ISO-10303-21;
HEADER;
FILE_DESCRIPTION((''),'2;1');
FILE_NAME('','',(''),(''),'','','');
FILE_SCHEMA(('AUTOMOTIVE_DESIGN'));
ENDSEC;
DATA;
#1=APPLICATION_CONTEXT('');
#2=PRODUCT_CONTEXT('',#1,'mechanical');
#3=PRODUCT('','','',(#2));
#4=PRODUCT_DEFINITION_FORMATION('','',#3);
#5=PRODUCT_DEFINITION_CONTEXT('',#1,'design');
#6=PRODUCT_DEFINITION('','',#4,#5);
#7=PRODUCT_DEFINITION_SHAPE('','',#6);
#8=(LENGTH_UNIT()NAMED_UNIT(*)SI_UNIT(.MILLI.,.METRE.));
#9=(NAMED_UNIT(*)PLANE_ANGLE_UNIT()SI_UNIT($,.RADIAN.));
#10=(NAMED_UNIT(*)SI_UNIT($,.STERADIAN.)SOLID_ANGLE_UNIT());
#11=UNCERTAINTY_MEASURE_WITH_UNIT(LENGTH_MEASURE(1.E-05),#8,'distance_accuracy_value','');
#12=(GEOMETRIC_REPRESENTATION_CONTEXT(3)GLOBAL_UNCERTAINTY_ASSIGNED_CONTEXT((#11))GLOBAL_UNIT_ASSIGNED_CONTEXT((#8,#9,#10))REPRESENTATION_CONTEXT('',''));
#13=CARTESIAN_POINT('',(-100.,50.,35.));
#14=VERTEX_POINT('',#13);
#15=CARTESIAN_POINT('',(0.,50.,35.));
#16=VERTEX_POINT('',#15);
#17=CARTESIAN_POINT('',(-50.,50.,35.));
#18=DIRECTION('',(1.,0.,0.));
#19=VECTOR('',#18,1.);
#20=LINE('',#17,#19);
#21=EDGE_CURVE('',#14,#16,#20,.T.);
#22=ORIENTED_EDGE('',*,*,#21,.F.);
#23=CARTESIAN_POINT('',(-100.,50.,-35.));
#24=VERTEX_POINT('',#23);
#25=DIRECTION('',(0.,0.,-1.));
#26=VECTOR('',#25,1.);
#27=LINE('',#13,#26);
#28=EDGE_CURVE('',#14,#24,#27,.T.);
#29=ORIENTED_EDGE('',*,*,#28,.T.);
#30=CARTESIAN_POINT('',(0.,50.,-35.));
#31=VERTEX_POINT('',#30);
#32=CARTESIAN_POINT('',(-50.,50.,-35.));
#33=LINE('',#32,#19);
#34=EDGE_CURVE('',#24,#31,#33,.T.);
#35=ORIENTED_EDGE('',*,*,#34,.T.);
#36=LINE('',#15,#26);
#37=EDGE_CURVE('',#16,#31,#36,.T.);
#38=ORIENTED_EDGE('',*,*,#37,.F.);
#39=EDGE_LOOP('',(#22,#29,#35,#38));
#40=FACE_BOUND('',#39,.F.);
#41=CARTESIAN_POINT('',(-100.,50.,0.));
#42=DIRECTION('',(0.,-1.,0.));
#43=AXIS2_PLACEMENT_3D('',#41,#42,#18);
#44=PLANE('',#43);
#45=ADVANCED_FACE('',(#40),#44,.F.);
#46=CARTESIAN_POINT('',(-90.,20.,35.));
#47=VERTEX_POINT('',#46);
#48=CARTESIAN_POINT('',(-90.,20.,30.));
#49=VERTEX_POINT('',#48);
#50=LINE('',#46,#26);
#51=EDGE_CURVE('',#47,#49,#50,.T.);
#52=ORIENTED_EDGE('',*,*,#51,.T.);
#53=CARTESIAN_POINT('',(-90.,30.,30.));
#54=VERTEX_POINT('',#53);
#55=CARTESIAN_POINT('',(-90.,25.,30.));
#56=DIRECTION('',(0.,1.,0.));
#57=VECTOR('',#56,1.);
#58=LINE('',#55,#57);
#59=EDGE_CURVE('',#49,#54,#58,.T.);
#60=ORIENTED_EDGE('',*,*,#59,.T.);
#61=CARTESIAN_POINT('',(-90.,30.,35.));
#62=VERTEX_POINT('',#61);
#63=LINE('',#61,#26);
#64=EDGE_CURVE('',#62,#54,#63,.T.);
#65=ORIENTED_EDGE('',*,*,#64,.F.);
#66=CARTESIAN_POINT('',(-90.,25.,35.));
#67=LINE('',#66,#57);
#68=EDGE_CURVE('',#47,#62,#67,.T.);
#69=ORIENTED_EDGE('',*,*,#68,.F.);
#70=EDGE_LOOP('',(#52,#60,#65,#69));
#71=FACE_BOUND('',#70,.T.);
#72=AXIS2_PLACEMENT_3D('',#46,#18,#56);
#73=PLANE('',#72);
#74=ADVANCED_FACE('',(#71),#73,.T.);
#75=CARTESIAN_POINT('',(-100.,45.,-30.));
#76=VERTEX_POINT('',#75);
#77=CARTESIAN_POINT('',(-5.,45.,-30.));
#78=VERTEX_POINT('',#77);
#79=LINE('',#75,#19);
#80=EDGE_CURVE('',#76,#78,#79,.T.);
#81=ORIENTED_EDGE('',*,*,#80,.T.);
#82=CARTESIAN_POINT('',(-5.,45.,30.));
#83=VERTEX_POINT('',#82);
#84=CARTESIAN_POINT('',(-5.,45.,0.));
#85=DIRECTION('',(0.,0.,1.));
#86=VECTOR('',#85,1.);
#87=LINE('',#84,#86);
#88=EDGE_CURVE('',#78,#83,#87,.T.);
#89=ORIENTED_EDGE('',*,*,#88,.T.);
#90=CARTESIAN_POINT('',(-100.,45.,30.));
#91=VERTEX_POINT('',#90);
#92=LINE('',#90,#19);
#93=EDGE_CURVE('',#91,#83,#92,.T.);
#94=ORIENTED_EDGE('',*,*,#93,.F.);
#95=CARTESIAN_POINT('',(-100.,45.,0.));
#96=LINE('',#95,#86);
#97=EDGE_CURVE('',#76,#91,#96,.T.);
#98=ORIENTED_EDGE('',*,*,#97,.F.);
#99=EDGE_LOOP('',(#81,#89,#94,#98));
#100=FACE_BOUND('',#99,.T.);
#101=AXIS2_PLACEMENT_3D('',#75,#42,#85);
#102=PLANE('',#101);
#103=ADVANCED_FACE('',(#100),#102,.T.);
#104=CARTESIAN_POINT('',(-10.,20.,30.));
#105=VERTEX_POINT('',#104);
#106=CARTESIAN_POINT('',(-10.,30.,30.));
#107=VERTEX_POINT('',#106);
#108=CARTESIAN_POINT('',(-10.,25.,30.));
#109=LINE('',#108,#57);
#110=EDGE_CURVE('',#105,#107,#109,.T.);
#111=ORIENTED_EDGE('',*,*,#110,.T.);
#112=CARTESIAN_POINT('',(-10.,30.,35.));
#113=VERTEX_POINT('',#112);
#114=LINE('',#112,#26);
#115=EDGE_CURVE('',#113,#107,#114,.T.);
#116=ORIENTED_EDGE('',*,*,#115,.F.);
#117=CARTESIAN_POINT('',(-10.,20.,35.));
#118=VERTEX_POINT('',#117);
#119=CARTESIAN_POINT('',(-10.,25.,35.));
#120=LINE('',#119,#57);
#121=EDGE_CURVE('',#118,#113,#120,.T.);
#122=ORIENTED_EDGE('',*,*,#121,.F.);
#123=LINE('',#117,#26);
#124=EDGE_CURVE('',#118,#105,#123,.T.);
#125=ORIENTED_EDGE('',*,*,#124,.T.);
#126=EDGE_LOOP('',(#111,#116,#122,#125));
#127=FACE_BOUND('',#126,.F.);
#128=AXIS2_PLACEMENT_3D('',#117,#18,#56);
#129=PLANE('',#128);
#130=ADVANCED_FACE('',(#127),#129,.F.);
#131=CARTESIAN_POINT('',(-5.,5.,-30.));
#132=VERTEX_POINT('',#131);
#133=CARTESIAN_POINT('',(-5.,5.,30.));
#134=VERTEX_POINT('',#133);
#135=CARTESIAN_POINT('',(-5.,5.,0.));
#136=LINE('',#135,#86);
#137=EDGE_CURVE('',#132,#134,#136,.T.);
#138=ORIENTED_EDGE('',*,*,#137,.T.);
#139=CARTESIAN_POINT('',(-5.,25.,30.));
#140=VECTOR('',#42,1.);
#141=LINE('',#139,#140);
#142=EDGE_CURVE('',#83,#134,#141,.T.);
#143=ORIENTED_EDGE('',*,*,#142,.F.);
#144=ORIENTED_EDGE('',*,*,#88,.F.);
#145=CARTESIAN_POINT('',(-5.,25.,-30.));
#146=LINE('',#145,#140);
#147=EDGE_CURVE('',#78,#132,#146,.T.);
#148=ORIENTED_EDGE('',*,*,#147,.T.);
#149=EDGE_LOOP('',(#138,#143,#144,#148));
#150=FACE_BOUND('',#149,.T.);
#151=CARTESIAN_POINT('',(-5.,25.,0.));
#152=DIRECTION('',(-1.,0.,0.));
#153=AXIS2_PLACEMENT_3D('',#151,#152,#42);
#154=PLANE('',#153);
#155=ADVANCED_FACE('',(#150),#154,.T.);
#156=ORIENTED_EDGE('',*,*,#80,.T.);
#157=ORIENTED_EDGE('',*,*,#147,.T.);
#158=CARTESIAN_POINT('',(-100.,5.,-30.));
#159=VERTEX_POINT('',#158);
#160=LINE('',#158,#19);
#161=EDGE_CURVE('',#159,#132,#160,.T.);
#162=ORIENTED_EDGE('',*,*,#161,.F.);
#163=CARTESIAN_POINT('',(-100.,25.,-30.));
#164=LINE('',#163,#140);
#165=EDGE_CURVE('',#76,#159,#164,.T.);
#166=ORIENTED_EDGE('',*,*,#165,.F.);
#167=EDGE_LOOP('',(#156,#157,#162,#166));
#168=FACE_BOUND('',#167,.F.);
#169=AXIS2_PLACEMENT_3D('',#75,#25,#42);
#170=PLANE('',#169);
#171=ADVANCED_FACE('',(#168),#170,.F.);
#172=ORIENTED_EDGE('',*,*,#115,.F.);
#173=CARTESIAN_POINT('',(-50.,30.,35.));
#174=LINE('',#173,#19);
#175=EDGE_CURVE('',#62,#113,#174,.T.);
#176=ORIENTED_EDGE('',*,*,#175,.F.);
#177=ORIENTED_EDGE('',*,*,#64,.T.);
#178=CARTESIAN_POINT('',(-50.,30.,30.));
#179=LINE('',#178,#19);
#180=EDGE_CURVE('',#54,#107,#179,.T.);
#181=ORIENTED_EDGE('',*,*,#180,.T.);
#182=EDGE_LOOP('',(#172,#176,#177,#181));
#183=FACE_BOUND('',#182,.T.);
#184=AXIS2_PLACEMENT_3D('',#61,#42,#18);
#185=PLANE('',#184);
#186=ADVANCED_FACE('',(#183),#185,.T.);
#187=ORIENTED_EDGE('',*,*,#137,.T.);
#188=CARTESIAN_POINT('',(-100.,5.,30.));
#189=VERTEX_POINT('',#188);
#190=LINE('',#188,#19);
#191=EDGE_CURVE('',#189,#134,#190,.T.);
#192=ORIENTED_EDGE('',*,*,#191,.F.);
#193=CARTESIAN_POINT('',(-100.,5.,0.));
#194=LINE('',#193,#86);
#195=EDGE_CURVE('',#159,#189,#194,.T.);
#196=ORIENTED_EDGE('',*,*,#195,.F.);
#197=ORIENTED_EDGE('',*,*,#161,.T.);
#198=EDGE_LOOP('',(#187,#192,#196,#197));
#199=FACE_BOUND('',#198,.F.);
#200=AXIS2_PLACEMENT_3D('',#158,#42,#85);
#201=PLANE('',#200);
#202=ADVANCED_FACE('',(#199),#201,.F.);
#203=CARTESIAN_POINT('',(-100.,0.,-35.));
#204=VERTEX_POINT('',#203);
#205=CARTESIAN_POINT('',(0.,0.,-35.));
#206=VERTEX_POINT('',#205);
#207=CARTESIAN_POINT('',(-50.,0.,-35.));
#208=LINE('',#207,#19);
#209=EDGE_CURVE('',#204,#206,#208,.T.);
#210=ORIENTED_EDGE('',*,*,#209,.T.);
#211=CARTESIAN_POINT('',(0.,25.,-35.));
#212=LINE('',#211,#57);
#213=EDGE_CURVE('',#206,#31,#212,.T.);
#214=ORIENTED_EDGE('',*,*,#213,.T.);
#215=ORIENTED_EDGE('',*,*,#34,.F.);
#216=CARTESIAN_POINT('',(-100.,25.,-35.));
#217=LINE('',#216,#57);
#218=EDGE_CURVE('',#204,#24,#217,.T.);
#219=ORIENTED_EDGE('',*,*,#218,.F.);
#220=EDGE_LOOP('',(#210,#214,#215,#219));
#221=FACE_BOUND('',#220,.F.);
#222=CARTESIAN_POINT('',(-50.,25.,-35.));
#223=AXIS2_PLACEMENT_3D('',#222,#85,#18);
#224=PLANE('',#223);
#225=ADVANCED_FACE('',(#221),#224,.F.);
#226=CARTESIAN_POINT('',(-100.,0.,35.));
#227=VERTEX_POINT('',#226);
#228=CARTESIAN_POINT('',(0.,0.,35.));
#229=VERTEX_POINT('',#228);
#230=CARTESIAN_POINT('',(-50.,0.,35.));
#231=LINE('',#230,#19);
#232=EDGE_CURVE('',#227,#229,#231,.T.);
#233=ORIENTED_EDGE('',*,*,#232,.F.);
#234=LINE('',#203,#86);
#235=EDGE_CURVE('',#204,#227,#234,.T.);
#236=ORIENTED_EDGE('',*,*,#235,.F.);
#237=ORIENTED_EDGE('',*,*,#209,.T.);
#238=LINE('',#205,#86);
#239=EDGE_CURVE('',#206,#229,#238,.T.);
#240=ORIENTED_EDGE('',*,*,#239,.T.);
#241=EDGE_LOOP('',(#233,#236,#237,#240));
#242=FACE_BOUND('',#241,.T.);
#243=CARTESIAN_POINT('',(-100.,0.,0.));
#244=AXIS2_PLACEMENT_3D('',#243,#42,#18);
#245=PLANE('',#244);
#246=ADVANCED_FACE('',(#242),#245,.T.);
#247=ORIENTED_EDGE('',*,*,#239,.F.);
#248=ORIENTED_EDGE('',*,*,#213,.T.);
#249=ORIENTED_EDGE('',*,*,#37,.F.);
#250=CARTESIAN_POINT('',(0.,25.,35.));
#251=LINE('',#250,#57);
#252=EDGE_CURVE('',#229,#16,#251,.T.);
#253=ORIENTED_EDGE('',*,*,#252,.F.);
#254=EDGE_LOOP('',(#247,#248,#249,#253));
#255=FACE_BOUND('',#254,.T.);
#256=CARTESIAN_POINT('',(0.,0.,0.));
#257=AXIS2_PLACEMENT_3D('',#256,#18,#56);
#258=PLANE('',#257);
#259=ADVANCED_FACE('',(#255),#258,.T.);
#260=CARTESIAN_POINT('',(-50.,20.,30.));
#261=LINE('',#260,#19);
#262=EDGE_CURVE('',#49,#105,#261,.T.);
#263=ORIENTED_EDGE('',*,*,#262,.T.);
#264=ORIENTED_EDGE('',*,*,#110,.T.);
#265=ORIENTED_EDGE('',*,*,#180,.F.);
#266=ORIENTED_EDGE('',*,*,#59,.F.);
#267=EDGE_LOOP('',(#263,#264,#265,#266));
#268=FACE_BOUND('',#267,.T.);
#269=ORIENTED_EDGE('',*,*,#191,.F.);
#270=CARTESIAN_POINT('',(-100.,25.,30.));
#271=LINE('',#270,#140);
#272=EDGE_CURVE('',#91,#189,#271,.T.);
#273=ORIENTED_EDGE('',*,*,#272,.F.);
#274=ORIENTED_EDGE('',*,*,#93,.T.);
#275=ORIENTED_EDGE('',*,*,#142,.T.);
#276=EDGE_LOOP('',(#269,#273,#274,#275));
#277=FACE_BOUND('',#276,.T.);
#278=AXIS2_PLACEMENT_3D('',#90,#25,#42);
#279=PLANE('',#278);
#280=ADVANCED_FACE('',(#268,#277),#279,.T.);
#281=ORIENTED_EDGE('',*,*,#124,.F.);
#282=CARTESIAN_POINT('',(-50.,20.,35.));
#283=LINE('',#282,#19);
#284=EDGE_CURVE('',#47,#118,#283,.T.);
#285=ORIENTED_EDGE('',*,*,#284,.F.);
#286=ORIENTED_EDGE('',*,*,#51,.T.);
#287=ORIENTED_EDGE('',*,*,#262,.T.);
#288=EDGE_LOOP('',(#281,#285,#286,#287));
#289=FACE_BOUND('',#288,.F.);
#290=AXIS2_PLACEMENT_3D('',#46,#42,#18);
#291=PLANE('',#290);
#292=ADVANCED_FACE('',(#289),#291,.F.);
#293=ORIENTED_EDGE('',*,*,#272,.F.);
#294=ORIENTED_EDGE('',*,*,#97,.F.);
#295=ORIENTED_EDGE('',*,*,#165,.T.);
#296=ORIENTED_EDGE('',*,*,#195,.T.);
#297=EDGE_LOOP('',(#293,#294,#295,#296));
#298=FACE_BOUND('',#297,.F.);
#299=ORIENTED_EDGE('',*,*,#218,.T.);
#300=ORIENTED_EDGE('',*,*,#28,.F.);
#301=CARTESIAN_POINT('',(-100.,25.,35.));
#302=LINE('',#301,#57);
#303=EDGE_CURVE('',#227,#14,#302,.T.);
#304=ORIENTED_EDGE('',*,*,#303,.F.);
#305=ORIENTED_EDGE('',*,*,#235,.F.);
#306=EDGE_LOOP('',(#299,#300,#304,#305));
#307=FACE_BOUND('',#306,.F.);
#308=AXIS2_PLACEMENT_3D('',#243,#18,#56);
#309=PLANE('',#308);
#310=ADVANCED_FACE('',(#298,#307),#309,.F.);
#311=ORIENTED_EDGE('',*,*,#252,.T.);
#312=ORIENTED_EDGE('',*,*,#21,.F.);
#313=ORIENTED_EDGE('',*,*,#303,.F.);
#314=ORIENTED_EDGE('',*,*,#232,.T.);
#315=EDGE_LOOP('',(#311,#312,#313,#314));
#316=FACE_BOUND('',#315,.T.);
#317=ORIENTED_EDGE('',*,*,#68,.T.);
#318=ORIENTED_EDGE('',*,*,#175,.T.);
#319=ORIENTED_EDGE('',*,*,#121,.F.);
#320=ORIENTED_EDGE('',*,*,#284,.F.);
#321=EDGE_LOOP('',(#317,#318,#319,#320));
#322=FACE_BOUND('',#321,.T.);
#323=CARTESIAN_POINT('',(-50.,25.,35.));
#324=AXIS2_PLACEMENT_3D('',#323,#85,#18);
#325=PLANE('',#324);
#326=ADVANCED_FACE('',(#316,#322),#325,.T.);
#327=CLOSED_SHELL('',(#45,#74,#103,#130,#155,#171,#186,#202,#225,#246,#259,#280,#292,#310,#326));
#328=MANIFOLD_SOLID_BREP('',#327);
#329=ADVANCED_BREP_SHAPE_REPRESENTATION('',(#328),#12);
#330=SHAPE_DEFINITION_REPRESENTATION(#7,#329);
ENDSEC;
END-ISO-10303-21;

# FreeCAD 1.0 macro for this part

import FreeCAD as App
import Part
import Sketcher
Q = App.Units.Quantity

doc = App.newDocument("Part")
body = doc.addObject("PartDesign::Body", "Body")

# Sketch on XY plane
sketch1 = body.newObject("Sketcher::SketchObject", "Sketch")
sketch1.AttachmentSupport = (doc.getObject("XY_Plane"), [""])
sketch1.MapMode = "FlatFace"
sketch1.addGeometry(Part.LineSegment(App.Vector(-100, 50, 0), App.Vector(-100, 0, 0)), False)
sketch1.addGeometry(Part.LineSegment(App.Vector(-100, 0, 0), App.Vector(0, 0, 0)), False)
sketch1.addGeometry(Part.LineSegment(App.Vector(0, 0, 0), App.Vector(0, 50, 0)), False)
sketch1.addGeometry(Part.LineSegment(App.Vector(0, 50, 0), App.Vector(-100, 50, 0)), False)
sketch1.addConstraint(Sketcher.Constraint("Coincident", 0, 2, 1, 1))
sketch1.addConstraint(Sketcher.Constraint("Coincident", 1, 2, 2, 1))
sketch1.addConstraint(Sketcher.Constraint("Coincident", 2, 2, 3, 1))
sketch1.addConstraint(Sketcher.Constraint("Coincident", 3, 2, 0, 1))
sketch1.addConstraint(Sketcher.Constraint("Vertical", 0))
sketch1.addConstraint(Sketcher.Constraint("Horizontal", 1))
sketch1.addConstraint(Sketcher.Constraint("Vertical", 2))
sketch1.addConstraint(Sketcher.Constraint("Horizontal", 3))
sketch1.addConstraint(Sketcher.Constraint("Coincident", 1, 2, -1, 1))
sketch1.addConstraint(Sketcher.Constraint("DistanceX", 1, 1, 1, 2, Q("100 mm")))
sketch1.addConstraint(Sketcher.Constraint("DistanceY", 0, 2, 0, 1, Q("50 mm")))
pad1 = body.newObject("PartDesign::Pad", "Pad")
pad1.Profile = sketch1
pad1.Length = 70
pad1.Midplane = True

# Sketch on YZ plane
sketch2 = body.newObject("Sketcher::SketchObject", "Sketch001")
sketch2.AttachmentSupport = (doc.getObject("YZ_Plane"), [""])
sketch2.MapMode = "FlatFace"
sketch2.AttachmentOffset = App.Placement(App.Vector(0, 0, -100), App.Rotation())
sketch2.addGeometry(Part.LineSegment(App.Vector(45, 30, 0), App.Vector(45, -30, 0)), False)
sketch2.addGeometry(Part.LineSegment(App.Vector(45, -30, 0), App.Vector(5, -30, 0)), False)
sketch2.addGeometry(Part.LineSegment(App.Vector(5, -30, 0), App.Vector(5, 30, 0)), False)
sketch2.addGeometry(Part.LineSegment(App.Vector(5, 30, 0), App.Vector(45, 30, 0)), False)
sketch2.addConstraint(Sketcher.Constraint("Coincident", 0, 2, 1, 1))
sketch2.addConstraint(Sketcher.Constraint("Coincident", 1, 2, 2, 1))
sketch2.addConstraint(Sketcher.Constraint("Coincident", 2, 2, 3, 1))
sketch2.addConstraint(Sketcher.Constraint("Coincident", 3, 2, 0, 1))
sketch2.addConstraint(Sketcher.Constraint("Vertical", 0))
sketch2.addConstraint(Sketcher.Constraint("Horizontal", 1))
sketch2.addConstraint(Sketcher.Constraint("Vertical", 2))
sketch2.addConstraint(Sketcher.Constraint("Horizontal", 3))
sketch2.addConstraint(Sketcher.Constraint("DistanceX", 1, 2, 1, 1, Q("40 mm")))
sketch2.addConstraint(Sketcher.Constraint("DistanceY", 0, 2, 0, 1, Q("60 mm")))
sketch2.addConstraint(Sketcher.Constraint("DistanceX", -1, 1, 0, 2, Q("45 mm")))
sketch2.addConstraint(Sketcher.Constraint("DistanceY", 0, 2, -1, 1, Q("30 mm")))
pocket1 = body.newObject("PartDesign::Pocket", "Pocket")
pocket1.Profile = sketch2
pocket1.Length = 95
pocket1.Reversed = True

# Sketch on XY plane
sketch3 = body.newObject("Sketcher::SketchObject", "Sketch002")
sketch3.AttachmentSupport = (doc.getObject("XY_Plane"), [""])
sketch3.MapMode = "FlatFace"
sketch3.AttachmentOffset = App.Placement(App.Vector(0, 0, 35), App.Rotation())
sketch3.addGeometry(Part.LineSegment(App.Vector(-90, 30, 0), App.Vector(-90, 20, 0)), False)
sketch3.addGeometry(Part.LineSegment(App.Vector(-90, 20, 0), App.Vector(-10, 20, 0)), False)
sketch3.addGeometry(Part.LineSegment(App.Vector(-10, 20, 0), App.Vector(-10, 30, 0)), False)
sketch3.addGeometry(Part.LineSegment(App.Vector(-10, 30, 0), App.Vector(-90, 30, 0)), False)
sketch3.addConstraint(Sketcher.Constraint("Coincident", 0, 2, 1, 1))
sketch3.addConstraint(Sketcher.Constraint("Coincident", 1, 2, 2, 1))
sketch3.addConstraint(Sketcher.Constraint("Coincident", 2, 2, 3, 1))
sketch3.addConstraint(Sketcher.Constraint("Coincident", 3, 2, 0, 1))
sketch3.addConstraint(Sketcher.Constraint("Vertical", 0))
sketch3.addConstraint(Sketcher.Constraint("Horizontal", 1))
sketch3.addConstraint(Sketcher.Constraint("Vertical", 2))
sketch3.addConstraint(Sketcher.Constraint("Horizontal", 3))
sketch3.addConstraint(Sketcher.Constraint("DistanceX", 1, 1, 1, 2, Q("80 mm")))
sketch3.addConstraint(Sketcher.Constraint("DistanceY", 0, 2, 0, 1, Q("10 mm")))
sketch3.addConstraint(Sketcher.Constraint("DistanceX", 0, 2, -1, 1, Q("90 mm")))
sketch3.addConstraint(Sketcher.Constraint("DistanceY", -1, 1, 0, 2, Q("20 mm")))
pocket2 = body.newObject("PartDesign::Pocket", "Pocket001")
pocket2.Profile = sketch3
pocket2.Length = 5

doc.recompute()
